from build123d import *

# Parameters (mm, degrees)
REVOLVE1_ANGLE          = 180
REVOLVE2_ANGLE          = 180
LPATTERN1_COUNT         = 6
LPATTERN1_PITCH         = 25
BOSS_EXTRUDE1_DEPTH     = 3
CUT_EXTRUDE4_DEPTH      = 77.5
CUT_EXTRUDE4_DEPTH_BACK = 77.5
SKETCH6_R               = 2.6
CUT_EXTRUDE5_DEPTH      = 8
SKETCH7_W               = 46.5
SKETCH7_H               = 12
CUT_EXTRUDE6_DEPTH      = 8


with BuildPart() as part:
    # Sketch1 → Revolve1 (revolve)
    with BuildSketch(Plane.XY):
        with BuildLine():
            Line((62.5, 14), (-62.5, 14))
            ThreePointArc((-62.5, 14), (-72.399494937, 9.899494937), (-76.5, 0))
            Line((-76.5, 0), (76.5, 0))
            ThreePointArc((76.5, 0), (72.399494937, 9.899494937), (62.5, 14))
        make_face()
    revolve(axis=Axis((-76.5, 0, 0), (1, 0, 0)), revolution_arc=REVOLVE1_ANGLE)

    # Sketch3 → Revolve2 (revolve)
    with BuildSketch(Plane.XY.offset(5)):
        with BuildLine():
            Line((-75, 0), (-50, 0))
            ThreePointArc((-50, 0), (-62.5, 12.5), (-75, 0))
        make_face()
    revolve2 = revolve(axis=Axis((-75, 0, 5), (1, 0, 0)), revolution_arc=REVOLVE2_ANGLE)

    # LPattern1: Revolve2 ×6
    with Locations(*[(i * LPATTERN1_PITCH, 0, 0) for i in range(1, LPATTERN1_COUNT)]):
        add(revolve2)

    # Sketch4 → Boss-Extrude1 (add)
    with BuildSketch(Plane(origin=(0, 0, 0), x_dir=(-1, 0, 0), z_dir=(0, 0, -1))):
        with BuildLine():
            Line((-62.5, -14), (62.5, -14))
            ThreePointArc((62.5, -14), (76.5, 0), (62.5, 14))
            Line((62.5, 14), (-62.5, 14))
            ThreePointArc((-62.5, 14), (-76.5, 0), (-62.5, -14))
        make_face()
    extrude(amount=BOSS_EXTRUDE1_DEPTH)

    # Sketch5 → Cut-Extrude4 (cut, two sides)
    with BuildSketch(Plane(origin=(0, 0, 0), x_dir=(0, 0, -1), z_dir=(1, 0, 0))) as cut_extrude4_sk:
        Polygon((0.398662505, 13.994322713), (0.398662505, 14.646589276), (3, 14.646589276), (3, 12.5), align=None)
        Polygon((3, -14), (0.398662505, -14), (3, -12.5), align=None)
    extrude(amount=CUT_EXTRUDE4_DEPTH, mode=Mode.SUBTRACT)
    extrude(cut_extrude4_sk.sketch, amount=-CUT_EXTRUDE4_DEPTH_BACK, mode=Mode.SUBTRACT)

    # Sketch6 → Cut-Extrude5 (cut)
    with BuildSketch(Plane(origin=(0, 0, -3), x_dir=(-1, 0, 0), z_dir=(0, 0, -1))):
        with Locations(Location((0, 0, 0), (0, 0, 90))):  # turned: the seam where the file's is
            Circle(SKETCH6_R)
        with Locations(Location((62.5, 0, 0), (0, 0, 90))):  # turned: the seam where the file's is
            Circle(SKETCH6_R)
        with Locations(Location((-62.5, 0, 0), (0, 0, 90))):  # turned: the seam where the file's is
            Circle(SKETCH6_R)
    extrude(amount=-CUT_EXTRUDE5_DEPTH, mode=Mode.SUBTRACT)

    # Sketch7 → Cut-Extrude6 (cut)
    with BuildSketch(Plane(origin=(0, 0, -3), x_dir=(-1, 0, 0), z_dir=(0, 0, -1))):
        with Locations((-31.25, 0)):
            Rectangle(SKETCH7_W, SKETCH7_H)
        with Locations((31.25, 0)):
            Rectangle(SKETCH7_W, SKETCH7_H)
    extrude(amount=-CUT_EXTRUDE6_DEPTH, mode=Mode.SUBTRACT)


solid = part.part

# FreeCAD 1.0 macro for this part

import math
import FreeCAD as App
import Part
import Sketcher
from FreeCAD import Vector


def add_polygon(sketch, points):
    """Adds a closed chain of lines whose ends are joined by coincident constraints."""
    first, n = sketch.GeometryCount, len(points)
    for a, b in zip(points, points[1:] + points[:1]):
        sketch.addGeometry(Part.LineSegment(App.Vector(*a, 0), App.Vector(*b, 0)), False)
    for i in range(n):
        sketch.addConstraint(Sketcher.Constraint("Coincident", first + i, 2, first + (i + 1) % n, 1))

doc = App.newDocument("Part")
body = doc.addObject("PartDesign::Body", "Body")

sketch1 = body.newObject("Sketcher::SketchObject", "Sketch")
sketch1.AttachmentSupport = (doc.getObject("XY_Plane"), [""])
sketch1.MapMode = "FlatFace"
sketch1.addGeometry([
    Part.LineSegment(Vector(62, 14, 0), Vector(-62, 14, 0)),
    Part.ArcOfCircle(Part.Circle(Vector(-63, 0, 0), Vector(0, 0, 1), 14), math.radians(90), math.radians(180)),
    Part.LineSegment(Vector(-76, 0, 0), Vector(76, 0, 0)),
    Part.ArcOfCircle(Part.Circle(Vector(63, 0, 0), Vector(0, 0, 1), 14), math.radians(0), math.radians(90)),
], False)
sketch1.addConstraint([
    Sketcher.Constraint("Tangent", 0, 2, 1, 1),
    Sketcher.Constraint("Coincident", 1, 2, 2, 1),
    Sketcher.Constraint("Coincident", 2, 2, 3, 1),
    Sketcher.Constraint("Tangent", 3, 2, 0, 1),
    Sketcher.Constraint("Horizontal", 0),
    Sketcher.Constraint("Horizontal", 2),
    Sketcher.Constraint("Equal", 1, 3),
    Sketcher.Constraint("Symmetric", 1, 3, 3, 3, -1, 1),
    Sketcher.Constraint("PointOnObject", 1, 2, -1),
    Sketcher.Constraint("Radius", 1, 14.0),
    Sketcher.Constraint("DistanceX", 0, 2, 0, 1, 125.0),
])
revolution = body.newObject("PartDesign::Revolution", "Revolution")
revolution.Profile = sketch1
revolution.ReferenceAxis = (sketch1, ["H_Axis"])
revolution.Angle = 180

sketch2 = body.newObject("Sketcher::SketchObject", "Sketch001")
sketch2.AttachmentSupport = (doc.getObject("XY_Plane"), [""])
sketch2.MapMode = "FlatFace"
sketch2.AttachmentOffset = App.Placement(Vector(0, 0, 5), App.Rotation())
sketch2.addGeometry([
    Part.LineSegment(Vector(-75, 0, 0), Vector(-50, 0, 0)),
    Part.ArcOfCircle(Part.Circle(Vector(-62, 0, 0), Vector(0, 0, 1), 12), math.radians(0), math.radians(180)),
], False)
sketch2.addConstraint([
    Sketcher.Constraint("Coincident", 0, 1, 1, 2),
    Sketcher.Constraint("Coincident", 1, 1, 0, 2),
    Sketcher.Constraint("Horizontal", 0),
    Sketcher.Constraint("PointOnObject", 1, 3, -1),
    Sketcher.Constraint("PointOnObject", 0, 1, -1),
    Sketcher.Constraint("Radius", 1, 12.5),
    Sketcher.Constraint("DistanceX", 0, 1, -1, 1, 75.0),
])
revolution2 = body.newObject("PartDesign::Revolution", "Revolution001")
revolution2.Profile = sketch2
revolution2.ReferenceAxis = (sketch2, ["H_Axis"])
revolution2.Angle = 180
doc.recompute()

linearpattern = body.newObject("PartDesign::LinearPattern", "LinearPattern")
linearpattern.Originals = [revolution2]
linearpattern.Direction = (doc.getObject("X_Axis"), [""])
linearpattern.Mode = "offset"
linearpattern.Offset = 25
linearpattern.Occurrences = 6
body.Tip = linearpattern

sketch3 = body.newObject("Sketcher::SketchObject", "Sketch002")
sketch3.AttachmentSupport = (doc.getObject("XY_Plane"), [""])
sketch3.MapMode = "FlatFace"
sketch3.addGeometry([
    Part.LineSegment(Vector(62, -14, 0), Vector(-62, -14, 0)),
    Part.ArcOfCircle(Part.Circle(Vector(-62, 0, 0), Vector(0, 0, 1), 14), math.radians(90), math.radians(270)),
    Part.LineSegment(Vector(-62, 14, 0), Vector(62, 14, 0)),
    Part.ArcOfCircle(Part.Circle(Vector(62, 0, 0), Vector(0, 0, 1), 14), math.radians(-90), math.radians(90)),
], False)
sketch3.addConstraint([
    Sketcher.Constraint("Tangent", 0, 2, 1, 2),
    Sketcher.Constraint("Tangent", 1, 1, 2, 1),
    Sketcher.Constraint("Tangent", 2, 2, 3, 2),
    Sketcher.Constraint("Tangent", 3, 1, 0, 1),
    Sketcher.Constraint("Horizontal", 0),
    Sketcher.Constraint("Horizontal", 2),
    Sketcher.Constraint("Symmetric", 1, 3, 3, 3, -1, 1),
    Sketcher.Constraint("Radius", 1, 14.0),
    Sketcher.Constraint("DistanceX", 0, 2, 0, 1, 125.0),
])
pad1 = body.newObject("PartDesign::Pad", "Pad")
pad1.Profile = sketch3
pad1.Length = 3
pad1.Reversed = True

sketch4 = body.newObject("Sketcher::SketchObject", "Sketch003")
sketch4.AttachmentSupport = (doc.getObject("YZ_Plane"), [""])
sketch4.MapMode = "FlatFace"
add_polygon(sketch4, [(14.6, -0.4), (14, -0.4), (12.5, -3), (14.6, -3)])
add_polygon(sketch4, [(-14, -0.4), (-14, -3), (-12.5, -3)])
sketch4.addConstraint([
    Sketcher.Constraint("Horizontal", 0),
    Sketcher.Constraint("Horizontal", 2),
    Sketcher.Constraint("Vertical", 3),
    Sketcher.Constraint("Vertical", 4),
    Sketcher.Constraint("Horizontal", 5),
    Sketcher.Constraint("Symmetric", 1, 2, 5, 2, -2),
    Sketcher.Constraint("Horizontal", 3, 2, 6, 2),
    Sketcher.Constraint("DistanceX", 5, 1, 5, 2, 1.5),
    Sketcher.Constraint("DistanceY", 1, 2, -1, 1, 3.0),
    Sketcher.Constraint("DistanceX", 4, 2, -1, 1, 14.0),
    Sketcher.Constraint("DistanceX", 2, 1, 2, 2, 2.146589),
    Sketcher.Constraint("DistanceX", 0, 2, 0, 1, 0.652267),
    Sketcher.Constraint("DistanceY", 3, 1, 3, 2, 2.601337),
])
pocket1 = body.newObject("PartDesign::Pocket", "Pocket")
pocket1.Profile = sketch4
pocket1.Type = "ThroughAll"
pocket1.Midplane = True

sketch5 = body.newObject("Sketcher::SketchObject", "Sketch004")
sketch5.AttachmentSupport = (doc.getObject("XY_Plane"), [""])
sketch5.MapMode = "FlatFace"
sketch5.AttachmentOffset = App.Placement(Vector(0, 0, -3), App.Rotation())
sketch5.addGeometry([
    Part.Circle(Vector(0, 0, 0), Vector(0, 0, 1), 2.6),
    Part.Circle(Vector(-62.5, 0, 0), Vector(0, 0, 1), 2.6),
    Part.Circle(Vector(62.5, 0, 0), Vector(0, 0, 1), 2.6),
], False)
sketch5.addConstraint([
    Sketcher.Constraint("Coincident", 0, 3, -1, 1),
    Sketcher.Constraint("Equal", 0, 1),
    Sketcher.Constraint("Equal", 1, 2),
    Sketcher.Constraint("Symmetric", 1, 3, 2, 3, -1, 1),
    Sketcher.Constraint("PointOnObject", 1, 3, -1),
    Sketcher.Constraint("Diameter", 0, 5.2),
    Sketcher.Constraint("DistanceX", 1, 3, 2, 3, 125.0),
])
pocket2 = body.newObject("PartDesign::Pocket", "Pocket001")
pocket2.Profile = sketch5
pocket2.Length = 8
pocket2.Reversed = True

sketch6 = body.newObject("Sketcher::SketchObject", "Sketch005")
sketch6.AttachmentSupport = (doc.getObject("XY_Plane"), [""])
sketch6.MapMode = "FlatFace"
sketch6.AttachmentOffset = App.Placement(Vector(0, 0, -3), App.Rotation())
add_polygon(sketch6, [(54, 6), (54, -6), (8, -6), (8, 6)])
add_polygon(sketch6, [(-8, 6), (-8, -6), (-54, -6), (-54, 6)])
sketch6.addConstraint([
    Sketcher.Constraint("Vertical", 0),
    Sketcher.Constraint("Horizontal", 1),
    Sketcher.Constraint("Vertical", 2),
    Sketcher.Constraint("Horizontal", 3),
    Sketcher.Constraint("Vertical", 4),
    Sketcher.Constraint("Horizontal", 5),
    Sketcher.Constraint("Vertical", 6),
    Sketcher.Constraint("Horizontal", 7),
    Sketcher.Constraint("Symmetric", 2, 2, 4, 2, -1, 1),
    Sketcher.Constraint("Symmetric", 0, 2, 6, 2, -1, 1),
    Sketcher.Constraint("Horizontal", 1, 2, 4, 2),
    Sketcher.Constraint("DistanceY", 0, 2, 0, 1, 12.0),
    Sketcher.Constraint("DistanceX", 1, 2, 1, 1, 46.5),
    Sketcher.Constraint("DistanceX", -1, 1, 1, 2, 8.0),
])
pocket3 = body.newObject("PartDesign::Pocket", "Pocket002")
pocket3.Profile = sketch6
pocket3.Length = 8
pocket3.Reversed = True

doc.recompute()
